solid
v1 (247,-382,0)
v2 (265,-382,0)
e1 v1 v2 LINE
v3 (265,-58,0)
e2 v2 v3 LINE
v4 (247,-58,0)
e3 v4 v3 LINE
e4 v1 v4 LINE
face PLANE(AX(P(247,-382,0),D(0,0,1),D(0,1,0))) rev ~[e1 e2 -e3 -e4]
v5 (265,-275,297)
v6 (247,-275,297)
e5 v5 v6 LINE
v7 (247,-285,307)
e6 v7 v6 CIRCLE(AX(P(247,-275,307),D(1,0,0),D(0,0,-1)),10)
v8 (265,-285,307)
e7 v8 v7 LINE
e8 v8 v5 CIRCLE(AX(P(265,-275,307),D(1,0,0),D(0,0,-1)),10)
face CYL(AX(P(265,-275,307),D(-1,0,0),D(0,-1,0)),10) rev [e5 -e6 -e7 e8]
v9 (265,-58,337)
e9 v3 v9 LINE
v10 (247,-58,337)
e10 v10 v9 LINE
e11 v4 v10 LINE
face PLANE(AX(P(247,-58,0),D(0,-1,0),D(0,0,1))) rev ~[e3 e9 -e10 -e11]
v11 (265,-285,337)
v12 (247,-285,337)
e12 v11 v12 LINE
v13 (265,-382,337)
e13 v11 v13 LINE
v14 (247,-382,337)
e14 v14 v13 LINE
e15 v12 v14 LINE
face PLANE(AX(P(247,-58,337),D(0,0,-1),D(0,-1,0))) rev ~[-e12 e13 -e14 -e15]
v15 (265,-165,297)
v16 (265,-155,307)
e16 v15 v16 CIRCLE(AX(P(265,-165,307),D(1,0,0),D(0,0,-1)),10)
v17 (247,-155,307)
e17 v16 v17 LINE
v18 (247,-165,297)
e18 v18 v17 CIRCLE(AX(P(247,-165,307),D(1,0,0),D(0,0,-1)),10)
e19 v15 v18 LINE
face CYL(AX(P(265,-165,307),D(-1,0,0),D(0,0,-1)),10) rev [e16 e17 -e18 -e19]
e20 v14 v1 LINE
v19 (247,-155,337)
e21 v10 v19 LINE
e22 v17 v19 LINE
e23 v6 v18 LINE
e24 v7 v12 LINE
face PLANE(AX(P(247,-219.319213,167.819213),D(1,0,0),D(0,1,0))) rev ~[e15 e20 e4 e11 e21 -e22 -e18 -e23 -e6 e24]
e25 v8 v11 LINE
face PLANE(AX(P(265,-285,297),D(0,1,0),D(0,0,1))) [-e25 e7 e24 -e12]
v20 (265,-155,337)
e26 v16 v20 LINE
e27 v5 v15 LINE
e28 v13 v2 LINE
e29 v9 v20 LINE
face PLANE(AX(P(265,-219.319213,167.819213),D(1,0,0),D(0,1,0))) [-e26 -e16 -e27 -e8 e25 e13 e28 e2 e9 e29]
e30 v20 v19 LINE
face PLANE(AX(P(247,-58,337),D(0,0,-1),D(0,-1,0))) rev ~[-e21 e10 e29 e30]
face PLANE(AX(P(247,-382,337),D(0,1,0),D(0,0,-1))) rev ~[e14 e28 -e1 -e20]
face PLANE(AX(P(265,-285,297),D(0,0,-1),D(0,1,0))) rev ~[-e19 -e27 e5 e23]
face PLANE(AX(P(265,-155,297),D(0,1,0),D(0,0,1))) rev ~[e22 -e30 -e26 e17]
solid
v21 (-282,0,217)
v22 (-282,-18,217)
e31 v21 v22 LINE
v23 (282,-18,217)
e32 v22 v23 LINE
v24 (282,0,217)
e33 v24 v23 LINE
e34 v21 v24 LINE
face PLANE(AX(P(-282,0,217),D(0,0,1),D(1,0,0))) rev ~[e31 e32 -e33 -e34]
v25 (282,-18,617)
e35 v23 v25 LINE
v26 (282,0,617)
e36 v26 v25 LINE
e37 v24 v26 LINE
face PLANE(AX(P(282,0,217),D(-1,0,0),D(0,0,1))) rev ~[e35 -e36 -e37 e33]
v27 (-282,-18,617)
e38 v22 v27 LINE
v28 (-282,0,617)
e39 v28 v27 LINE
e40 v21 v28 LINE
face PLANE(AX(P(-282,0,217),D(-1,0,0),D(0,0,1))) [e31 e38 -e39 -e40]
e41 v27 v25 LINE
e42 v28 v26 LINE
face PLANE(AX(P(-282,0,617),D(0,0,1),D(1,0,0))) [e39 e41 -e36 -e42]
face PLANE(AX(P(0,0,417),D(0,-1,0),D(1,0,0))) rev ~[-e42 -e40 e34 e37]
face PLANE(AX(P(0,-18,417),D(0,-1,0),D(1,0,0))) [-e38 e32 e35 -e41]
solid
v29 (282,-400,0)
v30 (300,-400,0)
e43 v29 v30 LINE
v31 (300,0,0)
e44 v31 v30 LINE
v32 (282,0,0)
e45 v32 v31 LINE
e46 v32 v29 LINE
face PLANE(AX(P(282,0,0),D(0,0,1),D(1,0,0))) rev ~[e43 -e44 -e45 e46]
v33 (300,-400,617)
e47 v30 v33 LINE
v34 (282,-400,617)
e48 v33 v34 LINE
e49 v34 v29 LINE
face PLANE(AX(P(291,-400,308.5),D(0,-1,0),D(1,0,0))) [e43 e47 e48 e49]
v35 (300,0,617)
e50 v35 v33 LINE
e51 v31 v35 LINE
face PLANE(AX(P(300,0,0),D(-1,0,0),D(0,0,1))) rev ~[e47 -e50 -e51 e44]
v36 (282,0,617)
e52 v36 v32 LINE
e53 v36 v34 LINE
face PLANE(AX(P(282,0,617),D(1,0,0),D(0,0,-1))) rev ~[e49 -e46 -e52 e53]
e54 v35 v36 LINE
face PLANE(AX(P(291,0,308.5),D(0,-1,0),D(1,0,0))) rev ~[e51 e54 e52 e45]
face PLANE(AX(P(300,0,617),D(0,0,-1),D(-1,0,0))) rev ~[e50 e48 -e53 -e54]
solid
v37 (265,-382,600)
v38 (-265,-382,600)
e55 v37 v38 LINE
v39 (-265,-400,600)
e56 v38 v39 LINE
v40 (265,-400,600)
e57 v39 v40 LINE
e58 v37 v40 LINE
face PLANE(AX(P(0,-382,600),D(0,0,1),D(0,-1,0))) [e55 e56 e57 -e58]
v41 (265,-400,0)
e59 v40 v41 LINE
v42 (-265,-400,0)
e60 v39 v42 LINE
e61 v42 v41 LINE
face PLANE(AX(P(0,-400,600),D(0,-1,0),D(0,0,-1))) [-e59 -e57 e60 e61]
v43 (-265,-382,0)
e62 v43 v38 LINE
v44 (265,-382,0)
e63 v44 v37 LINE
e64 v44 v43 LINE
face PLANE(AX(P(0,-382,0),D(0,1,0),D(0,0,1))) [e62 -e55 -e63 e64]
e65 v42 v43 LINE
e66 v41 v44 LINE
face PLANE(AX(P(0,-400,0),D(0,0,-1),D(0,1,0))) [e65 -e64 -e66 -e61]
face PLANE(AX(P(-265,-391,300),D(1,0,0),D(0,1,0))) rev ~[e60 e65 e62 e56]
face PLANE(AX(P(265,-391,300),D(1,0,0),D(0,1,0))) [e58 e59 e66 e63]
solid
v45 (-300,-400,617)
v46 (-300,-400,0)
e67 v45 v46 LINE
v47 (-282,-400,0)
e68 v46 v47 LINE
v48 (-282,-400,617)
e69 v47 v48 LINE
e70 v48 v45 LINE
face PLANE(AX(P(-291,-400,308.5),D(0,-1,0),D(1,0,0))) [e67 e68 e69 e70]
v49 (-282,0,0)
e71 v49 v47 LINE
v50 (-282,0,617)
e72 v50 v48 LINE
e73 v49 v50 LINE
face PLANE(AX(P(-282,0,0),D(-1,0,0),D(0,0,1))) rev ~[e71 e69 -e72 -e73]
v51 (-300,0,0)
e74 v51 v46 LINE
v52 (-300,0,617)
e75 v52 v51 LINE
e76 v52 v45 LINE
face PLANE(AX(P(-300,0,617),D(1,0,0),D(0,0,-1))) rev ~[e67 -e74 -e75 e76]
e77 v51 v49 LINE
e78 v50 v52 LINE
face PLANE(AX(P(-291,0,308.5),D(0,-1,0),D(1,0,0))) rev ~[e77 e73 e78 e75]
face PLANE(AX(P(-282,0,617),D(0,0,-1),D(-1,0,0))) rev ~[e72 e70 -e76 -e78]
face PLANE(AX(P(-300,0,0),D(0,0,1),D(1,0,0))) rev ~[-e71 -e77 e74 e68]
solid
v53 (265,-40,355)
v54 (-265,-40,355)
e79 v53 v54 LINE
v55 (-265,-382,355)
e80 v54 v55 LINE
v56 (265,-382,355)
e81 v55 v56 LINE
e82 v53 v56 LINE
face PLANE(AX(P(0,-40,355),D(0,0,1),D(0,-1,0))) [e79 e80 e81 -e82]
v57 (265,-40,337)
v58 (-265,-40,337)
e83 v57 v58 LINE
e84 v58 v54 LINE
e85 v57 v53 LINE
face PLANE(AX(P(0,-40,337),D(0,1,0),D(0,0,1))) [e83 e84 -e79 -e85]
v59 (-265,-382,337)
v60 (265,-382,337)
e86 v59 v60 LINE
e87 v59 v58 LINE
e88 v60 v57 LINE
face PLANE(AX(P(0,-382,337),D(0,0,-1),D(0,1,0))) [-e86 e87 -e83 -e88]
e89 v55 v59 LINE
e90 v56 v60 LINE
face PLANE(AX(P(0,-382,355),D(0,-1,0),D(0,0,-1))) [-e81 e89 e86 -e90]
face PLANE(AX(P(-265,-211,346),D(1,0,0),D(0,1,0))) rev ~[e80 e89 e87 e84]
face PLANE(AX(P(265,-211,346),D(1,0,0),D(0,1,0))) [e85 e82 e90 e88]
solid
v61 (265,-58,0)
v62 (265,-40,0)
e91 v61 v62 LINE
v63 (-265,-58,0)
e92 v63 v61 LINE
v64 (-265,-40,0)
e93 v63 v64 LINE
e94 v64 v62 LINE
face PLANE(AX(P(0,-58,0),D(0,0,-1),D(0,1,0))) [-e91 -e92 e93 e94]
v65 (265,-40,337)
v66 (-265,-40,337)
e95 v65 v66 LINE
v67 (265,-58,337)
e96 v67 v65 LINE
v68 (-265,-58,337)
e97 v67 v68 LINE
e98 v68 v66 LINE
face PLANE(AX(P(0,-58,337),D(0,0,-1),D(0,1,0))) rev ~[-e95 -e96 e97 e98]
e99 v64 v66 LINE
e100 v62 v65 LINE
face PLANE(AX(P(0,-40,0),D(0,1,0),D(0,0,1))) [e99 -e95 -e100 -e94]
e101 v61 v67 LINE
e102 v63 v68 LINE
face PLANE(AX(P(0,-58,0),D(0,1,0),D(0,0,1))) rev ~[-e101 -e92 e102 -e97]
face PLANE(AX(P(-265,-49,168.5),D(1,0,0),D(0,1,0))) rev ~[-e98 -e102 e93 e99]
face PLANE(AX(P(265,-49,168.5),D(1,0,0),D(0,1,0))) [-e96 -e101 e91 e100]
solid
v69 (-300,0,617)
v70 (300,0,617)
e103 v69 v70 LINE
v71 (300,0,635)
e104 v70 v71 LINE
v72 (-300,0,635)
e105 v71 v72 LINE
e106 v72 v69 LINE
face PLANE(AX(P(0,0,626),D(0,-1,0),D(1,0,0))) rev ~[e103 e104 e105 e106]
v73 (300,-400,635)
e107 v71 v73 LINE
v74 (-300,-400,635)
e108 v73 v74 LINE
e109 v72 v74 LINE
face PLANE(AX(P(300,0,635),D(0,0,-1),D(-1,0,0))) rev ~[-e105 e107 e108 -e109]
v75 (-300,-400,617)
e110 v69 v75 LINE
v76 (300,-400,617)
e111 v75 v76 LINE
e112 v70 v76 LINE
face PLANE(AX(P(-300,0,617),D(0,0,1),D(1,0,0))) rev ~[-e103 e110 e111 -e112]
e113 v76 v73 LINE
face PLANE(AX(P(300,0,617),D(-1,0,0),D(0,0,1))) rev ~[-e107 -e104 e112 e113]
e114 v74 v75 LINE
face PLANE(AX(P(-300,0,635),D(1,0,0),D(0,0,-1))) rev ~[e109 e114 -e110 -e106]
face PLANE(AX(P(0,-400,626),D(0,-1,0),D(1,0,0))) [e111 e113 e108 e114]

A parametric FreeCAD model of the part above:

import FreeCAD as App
import Part
import Sketcher
from FreeCAD import Vector
Q = App.Units.Quantity


def edges_at(feature, points):
    """Names of the edges that pass closest to the given points."""
    edges = feature.Shape.Edges
    near = lambda p: min(range(len(edges)), key=lambda i: edges[i].distToShape(Part.Vertex(*p))[0])
    return sorted({f"Edge{near(p) + 1}" for p in points})


def add_polygon(sketch, points):
    """Adds a closed chain of lines whose ends are joined by coincident constraints."""
    first, n = sketch.GeometryCount, len(points)
    for a, b in zip(points, points[1:] + points[:1]):
        sketch.addGeometry(Part.LineSegment(App.Vector(*a, 0), App.Vector(*b, 0)), False)
    for i in range(n):
        sketch.addConstraint(Sketcher.Constraint("Coincident", first + i, 2, first + (i + 1) % n, 1))

doc = App.newDocument("Part")
params = doc.addObject("Spreadsheet::Sheet", "Params")
for row, (alias, value) in enumerate([
    ("sketch1_width", "18 mm"),
    ("sketch1_height", "617 mm"),
    ("pad1_length", "400 mm"),
    ("sketch2_width", "18 mm"),
    ("sketch2_height", "617 mm"),
    ("pad2_length", "400 mm"),
    ("sketch3_width", "600 mm"),
    ("sketch3_height", "18 mm"),
    ("pad3_length", "400 mm"),
    ("sketch4_width", "564 mm"),
    ("sketch4_height", "400 mm"),
    ("pad4_length", "18 mm"),
    ("sketch5_width", "18 mm"),
    ("sketch5_height", "600 mm"),
    ("pad5_length", "530 mm"),
    ("sketch6_width", "342 mm"),
    ("sketch6_height", "18 mm"),
    ("pad6_length", "530 mm"),
    ("sketch7_width", "18 mm"),
    ("sketch7_height", "337 mm"),
    ("pad7_length", "530 mm"),
    ("sketch8_width", "324 mm"),
    ("sketch8_height", "337 mm"),
    ("pad8_length", "18 mm"),
    ("sketch9_width", "130 mm"),
    ("sketch9_height", "40 mm"),
    ("fillet_radius", "10 mm"),
], start=1):
    params.set(f"A{row}", alias)
    params.set(f"B{row}", "=" + value)
    params.setAlias(f"B{row}", alias)

body = doc.addObject("PartDesign::Body", "Body")

sketch1 = body.newObject("Sketcher::SketchObject", "Sketch")
sketch1.AttachmentSupport = (doc.getObject("XZ_Plane"), [""])
sketch1.MapMode = "FlatFace"
add_polygon(sketch1, [(-282, 0), (-282, 617), (-300, 617), (-300, 0)])
sketch1.addConstraint([
    Sketcher.Constraint("Vertical", 0),
    Sketcher.Constraint("Horizontal", 1),
    Sketcher.Constraint("Vertical", 2),
    Sketcher.Constraint("Horizontal", 3),
    Sketcher.Constraint("PointOnObject", 2, 2, -1),
    Sketcher.Constraint("DistanceX", 1, 2, 1, 1, Q("18 mm")),
    Sketcher.Constraint("DistanceY", 0, 1, 0, 2, Q("617 mm")),
    Sketcher.Constraint("DistanceX", 0, 2, -1, 1, Q("282 mm")),
])
sketch1.setExpression("Constraints[9]", "Params.sketch1_width")
sketch1.setExpression("Constraints[10]", "Params.sketch1_height")
pad1 = body.newObject("PartDesign::Pad", "Pad")
pad1.Profile = sketch1
pad1.setExpression("Length", "Params.pad1_length")
body2 = doc.addObject("PartDesign::Body", "Body001")

sketch2 = body2.newObject("Sketcher::SketchObject", "Sketch001")
sketch2.AttachmentSupport = (doc.getObject("XZ_Plane001"), [""])
sketch2.MapMode = "FlatFace"
add_polygon(sketch2, [(282, 0), (300, 0), (300, 617), (282, 617)])
sketch2.addConstraint([
    Sketcher.Constraint("Horizontal", 0),
    Sketcher.Constraint("Vertical", 1),
    Sketcher.Constraint("Horizontal", 2),
    Sketcher.Constraint("Vertical", 3),
    Sketcher.Constraint("PointOnObject", 0, 2, -1),
    Sketcher.Constraint("DistanceX", 0, 1, 0, 2, Q("18 mm")),
    Sketcher.Constraint("DistanceY", 1, 1, 1, 2, Q("617 mm")),
    Sketcher.Constraint("DistanceX", -1, 1, 0, 2, Q("300 mm")),
])
sketch2.setExpression("Constraints[9]", "Params.sketch2_width")
sketch2.setExpression("Constraints[10]", "Params.sketch2_height")
pad2 = body2.newObject("PartDesign::Pad", "Pad001")
pad2.Profile = sketch2
pad2.setExpression("Length", "Params.pad2_length")
body3 = doc.addObject("PartDesign::Body", "Body002")

sketch3 = body3.newObject("Sketcher::SketchObject", "Sketch002")
sketch3.AttachmentSupport = (doc.getObject("XZ_Plane002"), [""])
sketch3.MapMode = "FlatFace"
add_polygon(sketch3, [(300, 617), (300, 635), (-300, 635), (-300, 617)])
sketch3.addConstraint([
    Sketcher.Constraint("Vertical", 0),
    Sketcher.Constraint("Horizontal", 1),
    Sketcher.Constraint("Vertical", 2),
    Sketcher.Constraint("Horizontal", 3),
    Sketcher.Constraint("DistanceX", 1, 2, 1, 1, Q("600 mm")),
    Sketcher.Constraint("DistanceY", 0, 1, 0, 2, Q("18 mm")),
    Sketcher.Constraint("DistanceX", -1, 1, 0, 2, Q("300 mm")),
    Sketcher.Constraint("DistanceY", -1, 1, 0, 2, Q("635 mm")),
])
sketch3.setExpression("Constraints[8]", "Params.sketch3_width")
sketch3.setExpression("Constraints[9]", "Params.sketch3_height")
pad3 = body3.newObject("PartDesign::Pad", "Pad002")
pad3.Profile = sketch3
pad3.setExpression("Length", "Params.pad3_length")
body4 = doc.addObject("PartDesign::Body", "Body003")

sketch4 = body4.newObject("Sketcher::SketchObject", "Sketch003")
sketch4.AttachmentSupport = (doc.getObject("XZ_Plane003"), [""])
sketch4.MapMode = "FlatFace"
add_polygon(sketch4, [(-282, 617), (-282, 217), (282, 217), (282, 617)])
sketch4.addConstraint([
    Sketcher.Constraint("Vertical", 0),
    Sketcher.Constraint("Horizontal", 1),
    Sketcher.Constraint("Vertical", 2),
    Sketcher.Constraint("Horizontal", 3),
    Sketcher.Constraint("DistanceX", 1, 1, 1, 2, Q("564 mm")),
    Sketcher.Constraint("DistanceY", 0, 2, 0, 1, Q("400 mm")),
    Sketcher.Constraint("DistanceX", 0, 2, -1, 1, Q("282 mm")),
    Sketcher.Constraint("DistanceY", -1, 1, 0, 2, Q("217 mm")),
])
sketch4.setExpression("Constraints[8]", "Params.sketch4_width")
sketch4.setExpression("Constraints[9]", "Params.sketch4_height")
pad4 = body4.newObject("PartDesign::Pad", "Pad003")
pad4.Profile = sketch4
pad4.setExpression("Length", "Params.pad4_length")
body5 = doc.addObject("PartDesign::Body", "Body004")

sketch5 = body5.newObject("Sketcher::SketchObject", "Sketch004")
sketch5.AttachmentSupport = (doc.getObject("YZ_Plane004"), [""])
sketch5.MapMode = "FlatFace"
add_polygon(sketch5, [(-382, 600), (-400, 600), (-400, 0), (-382, 0)])
sketch5.addConstraint([
    Sketcher.Constraint("Horizontal", 0),
    Sketcher.Constraint("Vertical", 1),
    Sketcher.Constraint("Horizontal", 2),
    Sketcher.Constraint("Vertical", 3),
    Sketcher.Constraint("PointOnObject", 1, 2, -1),
    Sketcher.Constraint("DistanceX", 0, 2, 0, 1, Q("18 mm")),
    Sketcher.Constraint("DistanceY", 1, 2, 1, 1, Q("600 mm")),
    Sketcher.Constraint("DistanceX", 0, 2, -1, 1, Q("400 mm")),
])
sketch5.setExpression("Constraints[9]", "Params.sketch5_width")
sketch5.setExpression("Constraints[10]", "Params.sketch5_height")
pad5 = body5.newObject("PartDesign::Pad", "Pad004")
pad5.Profile = sketch5
pad5.setExpression("Length", "Params.pad5_length")
pad5.Midplane = True
body6 = doc.addObject("PartDesign::Body", "Body005")

sketch6 = body6.newObject("Sketcher::SketchObject", "Sketch005")
sketch6.AttachmentSupport = (doc.getObject("YZ_Plane005"), [""])
sketch6.MapMode = "FlatFace"
add_polygon(sketch6, [(-40, 355), (-382, 355), (-382, 337), (-40, 337)])
sketch6.addConstraint([
    Sketcher.Constraint("Horizontal", 0),
    Sketcher.Constraint("Vertical", 1),
    Sketcher.Constraint("Horizontal", 2),
    Sketcher.Constraint("Vertical", 3),
    Sketcher.Constraint("DistanceX", 0, 2, 0, 1, Q("342 mm")),
    Sketcher.Constraint("DistanceY", 1, 2, 1, 1, Q("18 mm")),
    Sketcher.Constraint("DistanceX", 0, 2, -1, 1, Q("382 mm")),
    Sketcher.Constraint("DistanceY", -1, 1, 0, 2, Q("355 mm")),
])
sketch6.setExpression("Constraints[8]", "Params.sketch6_width")
sketch6.setExpression("Constraints[9]", "Params.sketch6_height")
pad6 = body6.newObject("PartDesign::Pad", "Pad005")
pad6.Profile = sketch6
pad6.setExpression("Length", "Params.pad6_length")
pad6.Midplane = True
body7 = doc.addObject("PartDesign::Body", "Body006")

sketch7 = body7.newObject("Sketcher::SketchObject", "Sketch006")
sketch7.AttachmentSupport = (doc.getObject("YZ_Plane006"), [""])
sketch7.MapMode = "FlatFace"
add_polygon(sketch7, [(-58, 337), (-58, 0), (-40, 0), (-40, 337)])
sketch7.addConstraint([
    Sketcher.Constraint("Vertical", 0),
    Sketcher.Constraint("Horizontal", 1),
    Sketcher.Constraint("Vertical", 2),
    Sketcher.Constraint("Horizontal", 3),
    Sketcher.Constraint("PointOnObject", 0, 2, -1),
    Sketcher.Constraint("DistanceX", 1, 1, 1, 2, Q("18 mm")),
    Sketcher.Constraint("DistanceY", 0, 2, 0, 1, Q("337 mm")),
    Sketcher.Constraint("DistanceX", 0, 2, -1, 1, Q("58 mm")),
])
sketch7.setExpression("Constraints[9]", "Params.sketch7_width")
sketch7.setExpression("Constraints[10]", "Params.sketch7_height")
pad7 = body7.newObject("PartDesign::Pad", "Pad006")
pad7.Profile = sketch7
pad7.setExpression("Length", "Params.pad7_length")
pad7.Midplane = True
body8 = doc.addObject("PartDesign::Body", "Body007")

sketch8 = body8.newObject("Sketcher::SketchObject", "Sketch007")
sketch8.AttachmentSupport = (doc.getObject("YZ_Plane007"), [""])
sketch8.MapMode = "FlatFace"
sketch8.AttachmentOffset = App.Placement(Vector(0, 0, 247), App.Rotation())
add_polygon(sketch8, [(-382, 0), (-58, 0), (-58, 337), (-382, 337)])
sketch8.addConstraint([
    Sketcher.Constraint("Horizontal", 0),
    Sketcher.Constraint("Vertical", 1),
    Sketcher.Constraint("Horizontal", 2),
    Sketcher.Constraint("Vertical", 3),
    Sketcher.Constraint("PointOnObject", 0, 2, -1),
    Sketcher.Constraint("DistanceX", 0, 1, 0, 2, Q("324 mm")),
    Sketcher.Constraint("DistanceY", 1, 1, 1, 2, Q("337 mm")),
    Sketcher.Constraint("DistanceX", 0, 2, -1, 1, Q("58 mm")),
])
sketch8.setExpression("Constraints[9]", "Params.sketch8_width")
sketch8.setExpression("Constraints[10]", "Params.sketch8_height")
pad8 = body8.newObject("PartDesign::Pad", "Pad007")
pad8.Profile = sketch8
pad8.setExpression("Length", "Params.pad8_length")

sketch9 = body8.newObject("Sketcher::SketchObject", "Sketch008")
sketch9.AttachmentSupport = (doc.getObject("YZ_Plane007"), [""])
sketch9.MapMode = "FlatFace"
sketch9.AttachmentOffset = App.Placement(Vector(0, 0, 265), App.Rotation())
add_polygon(sketch9, [(-285, 337), (-285, 297), (-155, 297), (-155, 337)])
sketch9.addConstraint([
    Sketcher.Constraint("Vertical", 0),
    Sketcher.Constraint("Horizontal", 1),
    Sketcher.Constraint("Vertical", 2),
    Sketcher.Constraint("Horizontal", 3),
    Sketcher.Constraint("DistanceX", 1, 1, 1, 2, Q("130 mm")),
    Sketcher.Constraint("DistanceY", 0, 2, 0, 1, Q("40 mm")),
    Sketcher.Constraint("DistanceX", 0, 2, -1, 1, Q("285 mm")),
    Sketcher.Constraint("DistanceY", -1, 1, 0, 2, Q("297 mm")),
])
sketch9.setExpression("Constraints[8]", "Params.sketch9_width")
sketch9.setExpression("Constraints[9]", "Params.sketch9_height")
pocket1 = body8.newObject("PartDesign::Pocket", "Pocket")
pocket1.Profile = sketch9
pocket1.Type = "ThroughAll"
doc.recompute()

fillet = body8.newObject("PartDesign::Fillet", "Fillet")
fillet.Base = (pocket1, edges_at(pocket1, [(256, -285, 297), (256, -155, 297)]))
fillet.setExpression("Radius", "Params.fillet_radius")

doc.recompute()
